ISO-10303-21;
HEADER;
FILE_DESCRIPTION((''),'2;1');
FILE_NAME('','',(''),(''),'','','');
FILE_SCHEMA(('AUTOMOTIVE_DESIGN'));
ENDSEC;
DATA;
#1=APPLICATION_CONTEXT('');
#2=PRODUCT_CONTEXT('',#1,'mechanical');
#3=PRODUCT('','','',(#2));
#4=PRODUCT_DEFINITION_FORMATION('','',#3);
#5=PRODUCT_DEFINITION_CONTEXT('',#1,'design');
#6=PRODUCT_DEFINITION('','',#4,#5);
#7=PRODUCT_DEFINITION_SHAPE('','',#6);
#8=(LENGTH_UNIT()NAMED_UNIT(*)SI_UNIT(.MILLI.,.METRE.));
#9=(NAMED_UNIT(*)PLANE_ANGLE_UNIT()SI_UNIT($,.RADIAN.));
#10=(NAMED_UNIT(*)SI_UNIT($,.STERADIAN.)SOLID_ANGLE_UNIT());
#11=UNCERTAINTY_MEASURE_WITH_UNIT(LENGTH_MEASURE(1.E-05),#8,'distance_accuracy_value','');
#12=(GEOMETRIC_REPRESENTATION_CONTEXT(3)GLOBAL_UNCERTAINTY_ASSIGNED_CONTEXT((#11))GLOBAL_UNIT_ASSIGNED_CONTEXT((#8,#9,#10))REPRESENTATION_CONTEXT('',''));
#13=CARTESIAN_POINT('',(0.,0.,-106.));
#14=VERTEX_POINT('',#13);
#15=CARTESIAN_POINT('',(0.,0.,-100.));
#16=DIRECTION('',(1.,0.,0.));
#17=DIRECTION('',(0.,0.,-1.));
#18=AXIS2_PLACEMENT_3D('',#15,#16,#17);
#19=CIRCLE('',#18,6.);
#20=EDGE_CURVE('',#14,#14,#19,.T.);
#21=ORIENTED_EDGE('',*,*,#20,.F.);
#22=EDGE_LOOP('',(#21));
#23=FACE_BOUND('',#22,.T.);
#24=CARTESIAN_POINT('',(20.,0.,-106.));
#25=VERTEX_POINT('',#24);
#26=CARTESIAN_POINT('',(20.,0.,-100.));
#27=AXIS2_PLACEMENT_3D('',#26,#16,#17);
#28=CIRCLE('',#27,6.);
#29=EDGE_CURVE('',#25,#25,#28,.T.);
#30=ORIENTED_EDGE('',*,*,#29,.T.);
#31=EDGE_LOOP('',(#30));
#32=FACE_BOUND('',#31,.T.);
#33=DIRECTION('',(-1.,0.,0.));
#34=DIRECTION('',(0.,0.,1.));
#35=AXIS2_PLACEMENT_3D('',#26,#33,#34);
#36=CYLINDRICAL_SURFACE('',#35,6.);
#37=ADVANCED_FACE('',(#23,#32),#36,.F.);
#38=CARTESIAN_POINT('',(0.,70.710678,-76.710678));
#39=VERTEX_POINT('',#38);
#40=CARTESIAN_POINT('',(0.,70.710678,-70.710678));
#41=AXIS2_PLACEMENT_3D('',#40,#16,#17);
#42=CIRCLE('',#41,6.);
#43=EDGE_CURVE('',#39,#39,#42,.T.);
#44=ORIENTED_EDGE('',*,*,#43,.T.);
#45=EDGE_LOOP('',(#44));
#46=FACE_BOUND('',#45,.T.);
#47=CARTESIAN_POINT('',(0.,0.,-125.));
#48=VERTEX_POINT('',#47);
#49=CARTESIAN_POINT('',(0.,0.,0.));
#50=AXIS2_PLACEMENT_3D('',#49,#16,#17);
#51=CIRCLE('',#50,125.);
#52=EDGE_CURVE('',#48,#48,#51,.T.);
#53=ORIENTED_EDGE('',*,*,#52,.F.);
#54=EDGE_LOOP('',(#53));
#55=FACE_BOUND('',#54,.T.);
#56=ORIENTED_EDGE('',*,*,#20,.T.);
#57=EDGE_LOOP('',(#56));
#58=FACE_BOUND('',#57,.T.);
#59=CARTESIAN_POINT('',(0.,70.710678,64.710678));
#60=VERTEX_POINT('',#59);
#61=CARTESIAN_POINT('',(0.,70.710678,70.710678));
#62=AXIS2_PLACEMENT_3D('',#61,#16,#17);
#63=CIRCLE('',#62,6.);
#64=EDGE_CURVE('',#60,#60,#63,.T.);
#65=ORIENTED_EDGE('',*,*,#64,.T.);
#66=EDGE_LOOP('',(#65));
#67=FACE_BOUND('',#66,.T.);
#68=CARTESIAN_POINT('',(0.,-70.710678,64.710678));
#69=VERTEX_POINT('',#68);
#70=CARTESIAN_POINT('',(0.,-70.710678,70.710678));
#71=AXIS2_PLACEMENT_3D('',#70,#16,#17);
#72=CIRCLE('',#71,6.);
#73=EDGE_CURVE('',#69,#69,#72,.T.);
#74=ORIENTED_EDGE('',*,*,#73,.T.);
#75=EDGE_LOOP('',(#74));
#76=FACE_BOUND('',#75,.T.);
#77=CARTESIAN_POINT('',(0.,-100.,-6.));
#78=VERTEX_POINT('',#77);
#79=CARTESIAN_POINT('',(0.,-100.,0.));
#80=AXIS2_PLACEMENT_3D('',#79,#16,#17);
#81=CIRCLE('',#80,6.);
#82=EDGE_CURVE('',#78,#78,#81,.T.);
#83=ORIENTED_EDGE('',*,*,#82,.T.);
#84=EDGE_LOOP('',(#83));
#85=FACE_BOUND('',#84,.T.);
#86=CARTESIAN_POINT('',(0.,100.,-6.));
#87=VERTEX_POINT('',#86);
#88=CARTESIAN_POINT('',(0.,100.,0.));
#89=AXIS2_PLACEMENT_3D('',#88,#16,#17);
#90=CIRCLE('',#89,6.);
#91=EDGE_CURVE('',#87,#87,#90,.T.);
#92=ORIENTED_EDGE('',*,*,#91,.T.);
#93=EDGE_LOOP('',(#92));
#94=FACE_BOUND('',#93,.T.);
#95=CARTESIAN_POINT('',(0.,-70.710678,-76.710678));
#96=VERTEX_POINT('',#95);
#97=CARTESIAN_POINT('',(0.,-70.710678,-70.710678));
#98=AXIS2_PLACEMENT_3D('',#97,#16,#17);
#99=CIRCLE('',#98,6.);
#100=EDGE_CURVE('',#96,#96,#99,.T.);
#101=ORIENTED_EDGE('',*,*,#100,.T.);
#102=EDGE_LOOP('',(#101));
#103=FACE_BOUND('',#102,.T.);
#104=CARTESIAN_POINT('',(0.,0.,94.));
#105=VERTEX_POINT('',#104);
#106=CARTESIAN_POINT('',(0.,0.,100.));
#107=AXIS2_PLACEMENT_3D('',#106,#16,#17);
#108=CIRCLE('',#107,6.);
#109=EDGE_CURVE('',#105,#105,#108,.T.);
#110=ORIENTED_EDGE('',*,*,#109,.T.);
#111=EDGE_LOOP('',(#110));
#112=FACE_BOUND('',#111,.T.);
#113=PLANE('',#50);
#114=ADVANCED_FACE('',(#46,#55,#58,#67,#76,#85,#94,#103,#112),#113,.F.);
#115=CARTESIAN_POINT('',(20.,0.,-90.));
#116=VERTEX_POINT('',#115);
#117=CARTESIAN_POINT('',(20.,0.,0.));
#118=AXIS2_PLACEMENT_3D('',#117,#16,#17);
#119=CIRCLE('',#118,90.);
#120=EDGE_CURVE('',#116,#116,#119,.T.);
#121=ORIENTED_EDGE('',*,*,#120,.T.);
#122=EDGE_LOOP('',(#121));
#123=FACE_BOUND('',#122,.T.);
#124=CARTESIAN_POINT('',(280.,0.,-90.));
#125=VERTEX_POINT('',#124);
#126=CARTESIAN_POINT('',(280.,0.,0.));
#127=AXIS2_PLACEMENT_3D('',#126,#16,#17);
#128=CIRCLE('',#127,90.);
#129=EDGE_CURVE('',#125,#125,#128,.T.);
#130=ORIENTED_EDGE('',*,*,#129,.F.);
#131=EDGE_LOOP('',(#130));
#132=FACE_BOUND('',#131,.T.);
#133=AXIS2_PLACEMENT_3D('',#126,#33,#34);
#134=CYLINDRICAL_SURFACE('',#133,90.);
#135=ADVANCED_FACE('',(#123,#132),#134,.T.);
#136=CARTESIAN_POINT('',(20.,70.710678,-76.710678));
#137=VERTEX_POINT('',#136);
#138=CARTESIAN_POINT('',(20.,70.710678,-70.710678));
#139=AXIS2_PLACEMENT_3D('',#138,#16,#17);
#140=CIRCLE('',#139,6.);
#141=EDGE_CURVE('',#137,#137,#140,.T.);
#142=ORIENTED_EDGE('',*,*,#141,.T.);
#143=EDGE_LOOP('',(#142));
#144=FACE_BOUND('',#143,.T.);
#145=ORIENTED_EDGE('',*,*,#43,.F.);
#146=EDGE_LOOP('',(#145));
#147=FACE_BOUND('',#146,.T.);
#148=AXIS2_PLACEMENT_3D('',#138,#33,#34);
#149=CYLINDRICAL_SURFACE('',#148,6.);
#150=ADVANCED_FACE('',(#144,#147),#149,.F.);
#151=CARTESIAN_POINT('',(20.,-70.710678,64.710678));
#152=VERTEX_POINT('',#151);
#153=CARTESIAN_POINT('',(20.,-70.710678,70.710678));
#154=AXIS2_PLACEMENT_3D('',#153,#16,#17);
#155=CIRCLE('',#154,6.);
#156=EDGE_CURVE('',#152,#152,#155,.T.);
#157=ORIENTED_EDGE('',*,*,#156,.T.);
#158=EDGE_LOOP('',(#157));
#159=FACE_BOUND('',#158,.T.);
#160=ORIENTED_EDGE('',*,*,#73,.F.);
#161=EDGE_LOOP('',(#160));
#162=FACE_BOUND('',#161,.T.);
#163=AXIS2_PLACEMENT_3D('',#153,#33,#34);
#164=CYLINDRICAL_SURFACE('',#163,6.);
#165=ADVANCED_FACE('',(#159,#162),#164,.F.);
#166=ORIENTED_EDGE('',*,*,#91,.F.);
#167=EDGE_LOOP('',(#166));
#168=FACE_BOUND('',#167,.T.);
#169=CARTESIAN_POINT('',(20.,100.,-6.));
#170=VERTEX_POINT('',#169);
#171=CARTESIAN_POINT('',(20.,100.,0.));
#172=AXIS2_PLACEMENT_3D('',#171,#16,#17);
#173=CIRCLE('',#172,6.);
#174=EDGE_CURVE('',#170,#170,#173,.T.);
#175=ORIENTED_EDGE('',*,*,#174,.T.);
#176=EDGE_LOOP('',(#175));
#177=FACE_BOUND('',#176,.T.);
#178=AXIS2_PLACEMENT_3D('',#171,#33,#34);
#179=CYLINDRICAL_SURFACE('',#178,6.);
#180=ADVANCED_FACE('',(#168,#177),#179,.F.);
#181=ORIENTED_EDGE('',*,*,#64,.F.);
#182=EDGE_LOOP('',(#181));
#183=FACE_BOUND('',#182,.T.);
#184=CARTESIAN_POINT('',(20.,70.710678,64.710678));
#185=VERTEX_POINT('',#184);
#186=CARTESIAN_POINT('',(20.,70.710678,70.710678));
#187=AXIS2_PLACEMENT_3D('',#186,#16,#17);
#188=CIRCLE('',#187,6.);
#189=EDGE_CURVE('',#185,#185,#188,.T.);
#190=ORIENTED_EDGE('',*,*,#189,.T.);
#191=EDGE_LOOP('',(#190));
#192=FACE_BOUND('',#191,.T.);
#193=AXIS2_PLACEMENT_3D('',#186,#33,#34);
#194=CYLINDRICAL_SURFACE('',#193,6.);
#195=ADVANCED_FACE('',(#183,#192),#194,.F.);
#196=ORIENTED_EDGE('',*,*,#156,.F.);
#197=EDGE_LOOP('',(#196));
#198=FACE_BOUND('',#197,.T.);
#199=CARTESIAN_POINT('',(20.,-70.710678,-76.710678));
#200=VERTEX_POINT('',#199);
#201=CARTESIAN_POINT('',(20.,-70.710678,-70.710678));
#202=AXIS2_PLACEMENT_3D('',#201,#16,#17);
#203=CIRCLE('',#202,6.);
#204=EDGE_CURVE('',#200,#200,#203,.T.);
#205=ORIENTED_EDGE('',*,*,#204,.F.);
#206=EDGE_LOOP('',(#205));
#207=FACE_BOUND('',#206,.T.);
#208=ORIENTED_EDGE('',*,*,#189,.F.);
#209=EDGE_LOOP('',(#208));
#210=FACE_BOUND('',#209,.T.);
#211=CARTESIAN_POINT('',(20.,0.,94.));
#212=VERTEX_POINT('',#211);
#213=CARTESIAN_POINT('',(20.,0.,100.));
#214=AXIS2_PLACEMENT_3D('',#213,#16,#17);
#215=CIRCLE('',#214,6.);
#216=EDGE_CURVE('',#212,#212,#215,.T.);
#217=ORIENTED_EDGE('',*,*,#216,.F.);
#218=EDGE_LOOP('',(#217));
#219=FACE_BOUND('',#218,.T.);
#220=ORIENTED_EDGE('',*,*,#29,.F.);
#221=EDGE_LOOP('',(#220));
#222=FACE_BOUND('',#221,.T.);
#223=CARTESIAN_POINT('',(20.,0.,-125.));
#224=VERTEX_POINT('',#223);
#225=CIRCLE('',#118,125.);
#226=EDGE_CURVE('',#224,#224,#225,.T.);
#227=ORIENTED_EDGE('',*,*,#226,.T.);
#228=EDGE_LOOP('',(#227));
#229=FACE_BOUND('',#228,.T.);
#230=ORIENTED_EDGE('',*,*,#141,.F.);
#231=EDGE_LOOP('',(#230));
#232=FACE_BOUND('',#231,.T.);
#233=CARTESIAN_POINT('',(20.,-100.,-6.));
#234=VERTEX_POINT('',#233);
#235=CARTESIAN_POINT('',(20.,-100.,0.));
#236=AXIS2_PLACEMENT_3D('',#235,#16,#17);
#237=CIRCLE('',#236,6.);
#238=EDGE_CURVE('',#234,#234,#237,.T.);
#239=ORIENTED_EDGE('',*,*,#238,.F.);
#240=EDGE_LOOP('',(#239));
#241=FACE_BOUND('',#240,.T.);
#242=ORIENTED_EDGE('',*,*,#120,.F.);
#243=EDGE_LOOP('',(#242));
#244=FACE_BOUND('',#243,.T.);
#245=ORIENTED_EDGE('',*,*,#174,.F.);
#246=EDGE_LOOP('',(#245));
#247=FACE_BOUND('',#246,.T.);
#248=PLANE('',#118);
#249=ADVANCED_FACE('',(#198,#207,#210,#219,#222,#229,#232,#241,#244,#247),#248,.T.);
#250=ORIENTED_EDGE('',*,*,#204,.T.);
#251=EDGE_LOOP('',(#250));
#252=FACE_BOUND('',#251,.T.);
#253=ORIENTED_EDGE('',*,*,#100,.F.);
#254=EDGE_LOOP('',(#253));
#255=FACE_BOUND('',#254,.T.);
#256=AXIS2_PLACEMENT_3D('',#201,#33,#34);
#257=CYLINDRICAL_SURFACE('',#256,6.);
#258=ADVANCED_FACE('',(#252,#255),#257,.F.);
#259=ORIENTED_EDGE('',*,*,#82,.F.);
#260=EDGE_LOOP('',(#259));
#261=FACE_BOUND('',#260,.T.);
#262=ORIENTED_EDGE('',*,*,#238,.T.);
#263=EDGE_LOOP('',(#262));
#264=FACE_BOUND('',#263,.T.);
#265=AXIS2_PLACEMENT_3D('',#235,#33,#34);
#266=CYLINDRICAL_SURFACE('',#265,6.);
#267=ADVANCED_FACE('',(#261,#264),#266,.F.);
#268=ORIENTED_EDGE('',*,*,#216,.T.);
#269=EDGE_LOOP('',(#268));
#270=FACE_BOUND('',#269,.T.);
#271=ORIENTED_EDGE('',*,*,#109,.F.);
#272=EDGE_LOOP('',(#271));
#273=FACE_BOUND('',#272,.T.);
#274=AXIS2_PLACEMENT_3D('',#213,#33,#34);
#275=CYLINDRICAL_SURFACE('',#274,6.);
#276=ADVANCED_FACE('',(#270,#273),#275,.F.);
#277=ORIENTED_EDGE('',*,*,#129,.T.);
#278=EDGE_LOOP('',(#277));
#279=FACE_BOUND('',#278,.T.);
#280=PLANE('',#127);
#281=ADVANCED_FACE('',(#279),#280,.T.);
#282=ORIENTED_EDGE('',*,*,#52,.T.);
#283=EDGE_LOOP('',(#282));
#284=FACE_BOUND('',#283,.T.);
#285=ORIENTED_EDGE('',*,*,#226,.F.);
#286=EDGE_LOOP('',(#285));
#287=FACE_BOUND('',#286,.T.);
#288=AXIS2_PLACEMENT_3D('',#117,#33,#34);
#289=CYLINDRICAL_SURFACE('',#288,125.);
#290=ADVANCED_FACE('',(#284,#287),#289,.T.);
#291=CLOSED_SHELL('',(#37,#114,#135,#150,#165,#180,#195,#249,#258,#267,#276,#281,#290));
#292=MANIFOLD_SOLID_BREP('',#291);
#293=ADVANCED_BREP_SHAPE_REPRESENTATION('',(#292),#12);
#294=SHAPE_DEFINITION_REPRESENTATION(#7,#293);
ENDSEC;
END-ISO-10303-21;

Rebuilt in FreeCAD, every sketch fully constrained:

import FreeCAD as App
import Part
import Sketcher
from FreeCAD import Vector

doc = App.newDocument("Part")
body = doc.addObject("PartDesign::Body", "Body")

sketch1 = body.newObject("Sketcher::SketchObject", "Sketch")
sketch1.AttachmentSupport = (doc.getObject("YZ_Plane"), [""])
sketch1.MapMode = "FlatFace"
sketch1.addGeometry([
    Part.Circle(Vector(0, 0, 0), Vector(0, 0, 1), 125),
    Part.Circle(Vector(-70.710678, 70.710678, 0), Vector(0, 0, 1), 6),
    Part.Circle(Vector(-100, 0, 0), Vector(0, 0, 1), 6),
    Part.Circle(Vector(-70.710678, -70.710678, 0), Vector(0, 0, 1), 6),
    Part.Circle(Vector(0, 100, 0), Vector(0, 0, 1), 6),
    Part.Circle(Vector(70.710678, 70.710678, 0), Vector(0, 0, 1), 6),
    Part.Circle(Vector(0, -100, 0), Vector(0, 0, 1), 6),
    Part.Circle(Vector(100, 0, 0), Vector(0, 0, 1), 6),
    Part.Circle(Vector(70.710678, -70.710678, 0), Vector(0, 0, 1), 6),
], False)
sketch1.addConstraint([
    Sketcher.Constraint("Coincident", 0, 3, -1, 1),
    Sketcher.Constraint("Equal", 1, 2),
    Sketcher.Constraint("Equal", 2, 3),
    Sketcher.Constraint("Equal", 3, 4),
    Sketcher.Constraint("Equal", 4, 5),
    Sketcher.Constraint("Equal", 5, 6),
    Sketcher.Constraint("Equal", 6, 7),
    Sketcher.Constraint("Equal", 7, 8),
    Sketcher.Constraint("Symmetric", 3, 3, 5, 3, -1, 1),
    Sketcher.Constraint("Symmetric", 4, 3, 6, 3, -1, 1),
    Sketcher.Constraint("Symmetric", 2, 3, 7, 3, -1, 1),
    Sketcher.Constraint("Symmetric", 1, 3, 8, 3, -1, 1),
    Sketcher.Constraint("Symmetric", 1, 3, 5, 3, -2),
    Sketcher.Constraint("PointOnObject", 2, 3, -1),
    Sketcher.Constraint("PointOnObject", 4, 3, -2),
    Sketcher.Constraint("Diameter", 0, 250.0),
    Sketcher.Constraint("Diameter", 1, 12.0),
    Sketcher.Constraint("DistanceX", 2, 3, -1, 1, 100.0),
    Sketcher.Constraint("DistanceY", -1, 1, 4, 3, 100.0),
    Sketcher.Constraint("DistanceX", 1, 3, -1, 1, 70.710678),
    Sketcher.Constraint("DistanceY", -1, 1, 1, 3, 70.710678),
])
pad1 = body.newObject("PartDesign::Pad", "Pad")
pad1.Profile = sketch1
pad1.Length = 20

sketch2 = body.newObject("Sketcher::SketchObject", "Sketch001")
sketch2.AttachmentSupport = (doc.getObject("YZ_Plane"), [""])
sketch2.MapMode = "FlatFace"
sketch2.AttachmentOffset = App.Placement(Vector(0, 0, 20), App.Rotation())
sketch2.addGeometry(Part.Circle(Vector(0, 0, 0), Vector(0, 0, 1), 90), False)
sketch2.addConstraint([
    Sketcher.Constraint("Coincident", 0, 3, -1, 1),
    Sketcher.Constraint("Diameter", 0, 180.0),
])
pad2 = body.newObject("PartDesign::Pad", "Pad001")
pad2.Profile = sketch2
pad2.Length = 260

doc.recompute()
